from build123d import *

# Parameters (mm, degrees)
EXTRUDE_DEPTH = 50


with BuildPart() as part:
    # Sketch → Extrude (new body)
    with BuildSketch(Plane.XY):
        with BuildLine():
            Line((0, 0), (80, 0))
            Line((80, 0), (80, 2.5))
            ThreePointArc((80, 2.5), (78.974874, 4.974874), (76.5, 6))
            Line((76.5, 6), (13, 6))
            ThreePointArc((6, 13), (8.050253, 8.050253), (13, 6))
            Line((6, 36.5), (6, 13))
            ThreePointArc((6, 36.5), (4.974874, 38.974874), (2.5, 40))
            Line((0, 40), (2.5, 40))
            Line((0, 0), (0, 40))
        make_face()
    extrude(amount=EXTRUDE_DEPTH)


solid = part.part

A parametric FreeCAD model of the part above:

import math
import FreeCAD as App
import Part
import Sketcher

V = App.Vector

doc = App.newDocument("Part")
body = doc.addObject("PartDesign::Body", "Body")

# Sketch on XY plane
sketch1 = body.newObject("Sketcher::SketchObject", "Sketch")
sketch1.AttachmentSupport = (doc.getObject("XY_Plane"), [""])
sketch1.MapMode = "FlatFace"
sketch1.addGeometry([
    Part.LineSegment(V(0, 0, 0), V(80, 0, 0)),  # 0
    Part.LineSegment(V(80, 0, 0), V(80, 2.5, 0)),  # 1
    Part.ArcOfCircle(Part.Circle(V(76.5, 2.5, 0), V(0, 0, 1), 3.5), math.radians(0), math.radians(90)),  # 2
    Part.LineSegment(V(76.5, 6, 0), V(13, 6, 0)),  # 3
    Part.ArcOfCircle(Part.Circle(V(13, 13, 0), V(0, 0, 1), 7), math.radians(-180), math.radians(-90)),  # 4
    Part.LineSegment(V(6, 13, 0), V(6, 36.5, 0)),  # 5
    Part.ArcOfCircle(Part.Circle(V(2.5, 36.5, 0), V(0, 0, 1), 3.5), math.radians(0), math.radians(90)),  # 6
    Part.LineSegment(V(2.5, 40, 0), V(0, 40, 0)),  # 7
    Part.LineSegment(V(0, 40, 0), V(0, 0, 0)),  # 8
], False)
sketch1.addConstraint([
    Sketcher.Constraint("Coincident", 0, 2, 1, 1),
    Sketcher.Constraint("Tangent", 1, 2, 2, 1),
    Sketcher.Constraint("Tangent", 2, 2, 3, 1),
    Sketcher.Constraint("Tangent", 3, 2, 4, 2),
    Sketcher.Constraint("Tangent", 4, 1, 5, 1),
    Sketcher.Constraint("Tangent", 5, 2, 6, 1),
    Sketcher.Constraint("Tangent", 6, 2, 7, 1),
    Sketcher.Constraint("Coincident", 7, 2, 8, 1),
    Sketcher.Constraint("Coincident", 8, 2, 0, 1),
    Sketcher.Constraint("Horizontal", 0),
    Sketcher.Constraint("Vertical", 1),
    Sketcher.Constraint("Horizontal", 3),
    Sketcher.Constraint("Vertical", 5),
    Sketcher.Constraint("Horizontal", 7),
    Sketcher.Constraint("Vertical", 8),
    Sketcher.Constraint("Coincident", 8, 2, -1, 1),
    Sketcher.Constraint("Equal", 2, 6),
    Sketcher.Constraint("Equal", 7, 1),
    Sketcher.Constraint("Radius", 4, 7.000002),
    Sketcher.Constraint("Radius", 2, 3.499999),
    Sketcher.Constraint("DistanceX", 0, 1, 0, 2, 80.0),
    Sketcher.Constraint("DistanceY", 8, 2, 8, 1, 40.0),
    Sketcher.Constraint("DistanceX", 3, 2, 3, 1, 63.5),
])
pad1 = body.newObject("PartDesign::Pad", "Pad")
pad1.Profile = sketch1
pad1.Length = 50

doc.recompute()
